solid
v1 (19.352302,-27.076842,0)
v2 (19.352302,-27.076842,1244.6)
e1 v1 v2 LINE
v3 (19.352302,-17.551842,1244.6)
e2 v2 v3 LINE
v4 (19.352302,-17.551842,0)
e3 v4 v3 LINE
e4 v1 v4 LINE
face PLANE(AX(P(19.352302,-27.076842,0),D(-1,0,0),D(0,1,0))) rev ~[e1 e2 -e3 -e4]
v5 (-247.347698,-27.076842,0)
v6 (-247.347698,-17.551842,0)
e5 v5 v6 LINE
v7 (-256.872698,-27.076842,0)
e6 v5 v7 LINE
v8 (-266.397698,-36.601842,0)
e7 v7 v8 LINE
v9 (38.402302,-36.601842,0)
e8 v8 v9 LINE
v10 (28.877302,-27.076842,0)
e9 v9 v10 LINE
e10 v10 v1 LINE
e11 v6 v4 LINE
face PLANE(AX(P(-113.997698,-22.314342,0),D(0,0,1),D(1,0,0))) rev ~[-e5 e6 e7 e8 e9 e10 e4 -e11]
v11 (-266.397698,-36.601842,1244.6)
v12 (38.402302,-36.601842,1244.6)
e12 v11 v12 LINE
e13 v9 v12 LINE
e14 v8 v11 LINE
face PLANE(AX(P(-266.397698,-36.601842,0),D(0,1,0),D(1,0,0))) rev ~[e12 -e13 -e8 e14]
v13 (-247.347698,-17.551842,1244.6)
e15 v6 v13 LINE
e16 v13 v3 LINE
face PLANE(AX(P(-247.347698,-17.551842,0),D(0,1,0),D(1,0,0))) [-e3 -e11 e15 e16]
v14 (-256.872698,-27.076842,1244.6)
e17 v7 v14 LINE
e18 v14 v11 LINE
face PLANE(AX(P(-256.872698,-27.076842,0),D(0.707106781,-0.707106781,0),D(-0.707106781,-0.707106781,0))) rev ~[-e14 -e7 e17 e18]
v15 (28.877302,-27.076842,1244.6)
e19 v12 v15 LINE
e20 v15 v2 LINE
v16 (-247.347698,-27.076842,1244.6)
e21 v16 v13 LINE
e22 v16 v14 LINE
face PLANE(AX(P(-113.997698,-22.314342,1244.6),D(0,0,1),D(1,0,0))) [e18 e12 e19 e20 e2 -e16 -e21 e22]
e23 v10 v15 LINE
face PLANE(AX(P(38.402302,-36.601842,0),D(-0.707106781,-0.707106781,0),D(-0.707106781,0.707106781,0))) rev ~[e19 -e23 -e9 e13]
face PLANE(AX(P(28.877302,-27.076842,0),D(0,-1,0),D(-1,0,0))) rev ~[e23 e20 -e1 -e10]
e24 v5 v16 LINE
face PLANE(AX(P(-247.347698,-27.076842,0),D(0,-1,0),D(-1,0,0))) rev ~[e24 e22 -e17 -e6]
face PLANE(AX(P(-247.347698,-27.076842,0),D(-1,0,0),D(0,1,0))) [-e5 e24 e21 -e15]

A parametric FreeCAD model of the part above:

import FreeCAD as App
import Part
import Sketcher
Q = App.Units.Quantity


def add_polygon(sketch, points):
    """Adds a closed chain of lines whose ends are joined by coincident constraints."""
    first, n = sketch.GeometryCount, len(points)
    for a, b in zip(points, points[1:] + points[:1]):
        sketch.addGeometry(Part.LineSegment(App.Vector(*a, 0), App.Vector(*b, 0)), False)
    for i in range(n):
        sketch.addConstraint(Sketcher.Constraint("Coincident", first + i, 2, first + (i + 1) % n, 1))

doc = App.newDocument("Part")
params = doc.addObject("Spreadsheet::Sheet", "Params")
for row, (alias, value) in enumerate([
    ("sketch1_width", "12 in"),
    ("sketch1_width2", "10.5 in"),
    ("sketch1_width3", "0.375 in"),
    ("pad1_length", "49 in"),
], start=1):
    params.set(f"A{row}", alias)
    params.set(f"B{row}", "=" + value)
    params.setAlias(f"B{row}", alias)

body = doc.addObject("PartDesign::Body", "Body")

sketch1 = doc.addObject("Sketcher::SketchObject", "Sketch")
body.addObject(sketch1)
sketch1.AttachmentSupport = (doc.XY_Plane, [""])
sketch1.MapMode = "FlatFace"
add_polygon(sketch1, [(-247, -18), (-247, -27), (-257, -27), (-266, -37), (38, -37), (29, -27), (19, -27), (19, -18)])
sketch1.addConstraint(Sketcher.Constraint("Vertical", 0))
sketch1.addConstraint(Sketcher.Constraint("Horizontal", 1))
sketch1.addConstraint(Sketcher.Constraint("Horizontal", 3))
sketch1.addConstraint(Sketcher.Constraint("Horizontal", 5))
sketch1.addConstraint(Sketcher.Constraint("Vertical", 6))
sketch1.addConstraint(Sketcher.Constraint("Horizontal", 7))
sketch1.addConstraint(Sketcher.Constraint("Perpendicular", 2, 4))
sketch1.addConstraint(Sketcher.Constraint("Horizontal", 1, 2, 4, 2))
sketch1.addConstraint(Sketcher.Constraint("Equal", 1, 5))
sketch1.addConstraint(Sketcher.Constraint("Equal", 5, 0))
sketch1.addConstraint(Sketcher.Constraint("Equal", 2, 4))
sketch1.addConstraint(Sketcher.Constraint("DistanceX", 3, 1, 3, 2, Q("12 in")))
sketch1.addConstraint(Sketcher.Constraint("DistanceX", 7, 2, 7, 1, Q("10.5 in")))
sketch1.addConstraint(Sketcher.Constraint("DistanceX", 1, 2, 1, 1, Q("0.375 in")))
sketch1.addConstraint(Sketcher.Constraint("DistanceX", 0, 2, -1, 1, Q("247.347698 mm")))
sketch1.addConstraint(Sketcher.Constraint("DistanceY", 0, 2, -1, 1, Q("27.076842 mm")))
sketch1.setExpression("Constraints[19]", "Params.sketch1_width")
sketch1.setExpression("Constraints[20]", "Params.sketch1_width2")
sketch1.setExpression("Constraints[21]", "Params.sketch1_width3")
pad1 = doc.addObject("PartDesign::Pad", "Pad")
body.addObject(pad1)
pad1.Profile = sketch1
pad1.setExpression("Length", "Params.pad1_length")

doc.recompute()
